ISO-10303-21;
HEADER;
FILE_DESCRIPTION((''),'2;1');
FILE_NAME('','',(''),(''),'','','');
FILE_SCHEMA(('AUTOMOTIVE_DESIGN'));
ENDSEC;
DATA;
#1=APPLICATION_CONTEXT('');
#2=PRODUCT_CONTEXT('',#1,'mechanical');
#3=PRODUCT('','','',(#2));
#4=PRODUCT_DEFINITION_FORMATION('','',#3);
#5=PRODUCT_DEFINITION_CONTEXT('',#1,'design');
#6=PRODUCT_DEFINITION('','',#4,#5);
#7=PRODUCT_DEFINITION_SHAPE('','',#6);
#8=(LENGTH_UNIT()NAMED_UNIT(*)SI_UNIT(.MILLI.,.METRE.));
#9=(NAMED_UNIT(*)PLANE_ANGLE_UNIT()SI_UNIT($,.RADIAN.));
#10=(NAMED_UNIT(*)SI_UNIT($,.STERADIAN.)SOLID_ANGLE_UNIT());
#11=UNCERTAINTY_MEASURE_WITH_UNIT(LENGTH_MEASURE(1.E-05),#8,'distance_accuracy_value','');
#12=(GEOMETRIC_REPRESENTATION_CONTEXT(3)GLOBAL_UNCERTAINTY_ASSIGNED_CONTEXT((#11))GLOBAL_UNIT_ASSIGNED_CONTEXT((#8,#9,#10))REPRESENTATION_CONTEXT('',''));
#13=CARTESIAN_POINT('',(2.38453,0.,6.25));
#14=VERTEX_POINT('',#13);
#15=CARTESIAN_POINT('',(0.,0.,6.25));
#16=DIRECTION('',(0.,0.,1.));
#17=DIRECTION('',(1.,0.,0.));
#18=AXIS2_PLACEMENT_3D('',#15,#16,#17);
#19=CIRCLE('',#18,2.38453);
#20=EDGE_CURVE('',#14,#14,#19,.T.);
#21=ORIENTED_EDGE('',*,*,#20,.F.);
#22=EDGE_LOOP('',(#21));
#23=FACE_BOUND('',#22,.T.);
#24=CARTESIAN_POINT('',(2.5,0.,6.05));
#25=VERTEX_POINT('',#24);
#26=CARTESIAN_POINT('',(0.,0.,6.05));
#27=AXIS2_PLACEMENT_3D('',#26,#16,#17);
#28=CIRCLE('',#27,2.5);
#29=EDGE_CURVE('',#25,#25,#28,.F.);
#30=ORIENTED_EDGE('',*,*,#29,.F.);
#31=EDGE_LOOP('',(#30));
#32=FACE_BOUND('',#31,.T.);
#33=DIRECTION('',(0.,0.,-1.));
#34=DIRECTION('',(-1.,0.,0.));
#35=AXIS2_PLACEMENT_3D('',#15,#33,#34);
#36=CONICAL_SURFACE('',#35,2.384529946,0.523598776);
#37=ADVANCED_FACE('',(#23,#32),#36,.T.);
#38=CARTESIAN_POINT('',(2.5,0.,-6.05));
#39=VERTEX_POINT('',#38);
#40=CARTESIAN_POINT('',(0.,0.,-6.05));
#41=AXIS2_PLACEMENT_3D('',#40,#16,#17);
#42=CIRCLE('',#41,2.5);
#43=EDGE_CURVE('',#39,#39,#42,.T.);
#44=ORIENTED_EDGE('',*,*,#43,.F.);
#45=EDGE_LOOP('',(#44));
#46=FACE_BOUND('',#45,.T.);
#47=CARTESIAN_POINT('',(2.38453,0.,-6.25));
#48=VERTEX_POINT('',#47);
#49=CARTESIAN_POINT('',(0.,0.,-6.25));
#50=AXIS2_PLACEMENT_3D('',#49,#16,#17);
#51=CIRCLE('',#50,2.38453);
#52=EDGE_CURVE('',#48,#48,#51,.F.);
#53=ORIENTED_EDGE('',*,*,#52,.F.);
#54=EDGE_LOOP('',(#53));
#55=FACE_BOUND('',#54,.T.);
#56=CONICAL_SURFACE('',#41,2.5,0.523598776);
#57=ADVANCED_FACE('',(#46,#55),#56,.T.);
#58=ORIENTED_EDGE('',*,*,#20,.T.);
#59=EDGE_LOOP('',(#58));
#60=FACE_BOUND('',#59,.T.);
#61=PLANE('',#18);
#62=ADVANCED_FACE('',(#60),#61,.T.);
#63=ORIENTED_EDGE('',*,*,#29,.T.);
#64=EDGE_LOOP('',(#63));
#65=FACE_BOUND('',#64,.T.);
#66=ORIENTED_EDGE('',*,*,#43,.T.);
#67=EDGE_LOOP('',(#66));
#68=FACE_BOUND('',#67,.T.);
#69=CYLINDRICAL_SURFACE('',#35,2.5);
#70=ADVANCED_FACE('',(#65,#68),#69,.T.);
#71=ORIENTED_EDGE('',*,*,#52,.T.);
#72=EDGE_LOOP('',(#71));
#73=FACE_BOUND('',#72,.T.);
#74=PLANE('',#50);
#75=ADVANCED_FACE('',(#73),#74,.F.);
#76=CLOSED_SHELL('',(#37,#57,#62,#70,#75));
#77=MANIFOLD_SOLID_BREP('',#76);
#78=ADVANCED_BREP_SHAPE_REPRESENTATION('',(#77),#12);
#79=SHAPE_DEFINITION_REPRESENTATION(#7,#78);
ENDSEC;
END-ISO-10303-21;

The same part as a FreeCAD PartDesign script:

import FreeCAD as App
import Part
import Sketcher

V = App.Vector


def edges_at(feature, points):
    """Names of the edges that pass closest to the given points."""
    edges = feature.Shape.Edges
    near = lambda p: min(range(len(edges)), key=lambda i: edges[i].distToShape(Part.Vertex(*p))[0])
    return sorted({f"Edge{near(p) + 1}" for p in points})

doc = App.newDocument("Part")
body = doc.addObject("PartDesign::Body", "Body")

# Sketch on XY plane
sketch1 = doc.addObject("Sketcher::SketchObject", "Sketch")
body.addObject(sketch1)
sketch1.AttachmentSupport = (doc.XY_Plane, [""])
sketch1.MapMode = "FlatFace"
sketch1.addGeometry(Part.Circle(V(0, 0, 0), V(0, 0, 1), 2.5), False)
sketch1.addConstraint([
    Sketcher.Constraint("Coincident", 0, 3, -1, 1),
    Sketcher.Constraint("Diameter", 0, 5.0),
])
pad1 = doc.addObject("PartDesign::Pad", "Pad")
body.addObject(pad1)
pad1.Profile = sketch1
pad1.Length = 12.5
pad1.Midplane = True
doc.recompute()

chamfer = doc.addObject("PartDesign::Chamfer", "Chamfer")
body.addObject(chamfer)
chamfer.Base = (pad1, edges_at(pad1, [(-2.5, 0, -6.25), (-2.5, 0, 6.25)]))
chamfer.ChamferType = "Two distances"
chamfer.Size = 0.2
chamfer.Size2 = 0.11547

doc.recompute()
